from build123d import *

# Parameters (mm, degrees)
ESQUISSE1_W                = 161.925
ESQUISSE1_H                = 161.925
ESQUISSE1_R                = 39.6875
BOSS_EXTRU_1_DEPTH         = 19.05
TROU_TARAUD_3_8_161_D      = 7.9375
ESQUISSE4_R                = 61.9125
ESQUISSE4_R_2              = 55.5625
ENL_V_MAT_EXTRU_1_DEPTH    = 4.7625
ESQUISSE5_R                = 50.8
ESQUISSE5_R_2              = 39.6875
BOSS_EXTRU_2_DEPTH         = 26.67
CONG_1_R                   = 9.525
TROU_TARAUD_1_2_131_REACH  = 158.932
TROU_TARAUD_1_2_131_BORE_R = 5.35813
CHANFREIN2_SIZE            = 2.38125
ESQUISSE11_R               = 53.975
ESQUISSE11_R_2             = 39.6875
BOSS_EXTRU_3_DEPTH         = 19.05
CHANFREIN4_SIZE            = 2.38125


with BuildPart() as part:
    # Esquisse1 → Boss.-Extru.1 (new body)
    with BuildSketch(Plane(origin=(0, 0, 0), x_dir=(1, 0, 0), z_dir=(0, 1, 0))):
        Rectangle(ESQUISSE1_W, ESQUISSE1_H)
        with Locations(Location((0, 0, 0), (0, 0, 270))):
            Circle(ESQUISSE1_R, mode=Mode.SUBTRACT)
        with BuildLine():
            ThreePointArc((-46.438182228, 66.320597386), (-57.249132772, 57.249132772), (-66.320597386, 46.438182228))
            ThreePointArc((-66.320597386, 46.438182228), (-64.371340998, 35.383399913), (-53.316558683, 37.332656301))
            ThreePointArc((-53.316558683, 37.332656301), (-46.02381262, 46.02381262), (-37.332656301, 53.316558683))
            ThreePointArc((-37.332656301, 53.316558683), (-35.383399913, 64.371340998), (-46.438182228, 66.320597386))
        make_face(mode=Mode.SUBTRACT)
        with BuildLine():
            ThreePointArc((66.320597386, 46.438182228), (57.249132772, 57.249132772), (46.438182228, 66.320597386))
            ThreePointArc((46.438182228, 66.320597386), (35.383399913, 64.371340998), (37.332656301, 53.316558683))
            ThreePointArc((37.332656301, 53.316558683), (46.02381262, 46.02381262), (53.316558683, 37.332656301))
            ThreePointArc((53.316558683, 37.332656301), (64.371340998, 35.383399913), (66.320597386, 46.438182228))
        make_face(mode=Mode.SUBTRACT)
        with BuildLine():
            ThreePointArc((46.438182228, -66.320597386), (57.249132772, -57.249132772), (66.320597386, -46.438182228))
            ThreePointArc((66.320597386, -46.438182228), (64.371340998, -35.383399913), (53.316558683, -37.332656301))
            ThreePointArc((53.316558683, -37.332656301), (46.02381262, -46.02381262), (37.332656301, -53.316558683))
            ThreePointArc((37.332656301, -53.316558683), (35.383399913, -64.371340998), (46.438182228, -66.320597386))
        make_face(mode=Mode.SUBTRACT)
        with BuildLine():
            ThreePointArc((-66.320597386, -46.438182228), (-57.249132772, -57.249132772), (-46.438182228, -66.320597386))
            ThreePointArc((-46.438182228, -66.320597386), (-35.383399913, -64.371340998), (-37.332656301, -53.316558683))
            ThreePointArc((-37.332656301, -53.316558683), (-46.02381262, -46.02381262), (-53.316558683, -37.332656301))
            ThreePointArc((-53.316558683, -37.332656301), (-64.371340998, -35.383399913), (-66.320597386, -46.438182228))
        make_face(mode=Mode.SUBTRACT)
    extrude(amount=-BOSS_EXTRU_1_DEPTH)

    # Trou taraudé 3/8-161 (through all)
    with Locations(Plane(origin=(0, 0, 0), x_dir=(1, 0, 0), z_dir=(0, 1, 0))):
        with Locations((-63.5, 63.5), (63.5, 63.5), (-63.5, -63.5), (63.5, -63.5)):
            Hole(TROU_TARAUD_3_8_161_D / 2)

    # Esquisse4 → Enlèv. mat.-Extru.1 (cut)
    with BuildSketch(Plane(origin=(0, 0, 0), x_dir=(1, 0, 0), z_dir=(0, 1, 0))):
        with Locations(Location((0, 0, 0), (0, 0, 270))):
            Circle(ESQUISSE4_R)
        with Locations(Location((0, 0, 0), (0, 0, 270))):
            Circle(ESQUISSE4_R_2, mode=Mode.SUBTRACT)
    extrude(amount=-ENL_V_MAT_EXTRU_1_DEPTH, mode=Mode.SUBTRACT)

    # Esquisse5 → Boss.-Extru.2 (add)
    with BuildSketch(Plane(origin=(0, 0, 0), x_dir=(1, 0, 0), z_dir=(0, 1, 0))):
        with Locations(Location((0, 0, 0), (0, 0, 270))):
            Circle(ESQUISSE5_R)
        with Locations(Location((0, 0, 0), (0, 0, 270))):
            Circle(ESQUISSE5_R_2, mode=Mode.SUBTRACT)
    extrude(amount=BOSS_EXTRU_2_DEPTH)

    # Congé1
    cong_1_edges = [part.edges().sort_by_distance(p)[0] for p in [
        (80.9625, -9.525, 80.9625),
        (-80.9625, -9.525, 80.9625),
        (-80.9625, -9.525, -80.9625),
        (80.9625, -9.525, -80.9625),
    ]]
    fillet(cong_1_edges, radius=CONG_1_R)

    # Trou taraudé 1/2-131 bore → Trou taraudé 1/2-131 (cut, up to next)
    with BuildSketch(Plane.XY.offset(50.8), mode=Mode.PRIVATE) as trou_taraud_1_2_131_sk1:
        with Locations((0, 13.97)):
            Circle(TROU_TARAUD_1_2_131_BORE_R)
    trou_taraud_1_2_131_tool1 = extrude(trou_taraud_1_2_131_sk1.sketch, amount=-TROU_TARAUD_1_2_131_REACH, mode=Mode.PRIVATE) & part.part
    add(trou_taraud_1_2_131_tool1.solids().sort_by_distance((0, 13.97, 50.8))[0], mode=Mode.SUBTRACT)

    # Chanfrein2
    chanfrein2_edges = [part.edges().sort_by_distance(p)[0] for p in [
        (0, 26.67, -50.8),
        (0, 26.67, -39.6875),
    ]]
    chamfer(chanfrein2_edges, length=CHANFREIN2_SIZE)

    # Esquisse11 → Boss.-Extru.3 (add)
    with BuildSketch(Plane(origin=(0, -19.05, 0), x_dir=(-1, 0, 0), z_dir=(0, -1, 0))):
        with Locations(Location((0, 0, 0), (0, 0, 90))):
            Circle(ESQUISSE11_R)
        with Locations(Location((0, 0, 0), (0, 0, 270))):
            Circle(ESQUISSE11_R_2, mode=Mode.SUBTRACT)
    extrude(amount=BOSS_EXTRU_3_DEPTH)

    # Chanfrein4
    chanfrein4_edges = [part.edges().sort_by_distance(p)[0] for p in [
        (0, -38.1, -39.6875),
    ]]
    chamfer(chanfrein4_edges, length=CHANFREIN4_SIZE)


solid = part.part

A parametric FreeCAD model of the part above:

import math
import FreeCAD as App
import Part
import Sketcher
from FreeCAD import Vector
Q = App.Units.Quantity


def edges_at(feature, points):
    """Names of the edges that pass closest to the given points."""
    edges = feature.Shape.Edges
    near = lambda p: min(range(len(edges)), key=lambda i: edges[i].distToShape(Part.Vertex(*p))[0])
    return sorted({f"Edge{near(p) + 1}" for p in points})

doc = App.newDocument("Part")
body = doc.addObject("PartDesign::Body", "Body")

# Sketch on XZ plane
sketch1 = body.newObject("Sketcher::SketchObject", "Sketch")
sketch1.AttachmentSupport = (doc.getObject("XZ_Plane"), [""])
sketch1.MapMode = "FlatFace"
sketch1.addGeometry([
    Part.LineSegment(Vector(-81, -81, 0), Vector(-81, 81, 0)),  # 0
    Part.LineSegment(Vector(-81, 81, 0), Vector(81, 81, 0)),  # 1
    Part.LineSegment(Vector(81, 81, 0), Vector(81, -81, 0)),  # 2
    Part.LineSegment(Vector(81, -81, 0), Vector(-81, -81, 0)),  # 3
    Part.ArcOfCircle(Part.Circle(Vector(0, 0, 0), Vector(0, 0, 1), 81), math.radians(125), math.radians(145)),  # 4
    Part.ArcOfCircle(Part.Circle(Vector(-60, 42, 0), Vector(0, 0, 1), 8), math.radians(145), math.radians(325)),  # 5
    Part.ArcOfCircle(Part.Circle(Vector(0, 0, 0), Vector(0, 0, 1), 65), math.radians(125), math.radians(145)),  # 6
    Part.ArcOfCircle(Part.Circle(Vector(-42, 60, 0), Vector(0, 0, 1), 8), math.radians(-55), math.radians(125)),  # 7
    Part.ArcOfCircle(Part.Circle(Vector(0, 0, 0), Vector(0, 0, 1), 81), math.radians(35), math.radians(55)),  # 8
    Part.ArcOfCircle(Part.Circle(Vector(42, 60, 0), Vector(0, 0, 1), 8), math.radians(55), math.radians(235)),  # 9
    Part.ArcOfCircle(Part.Circle(Vector(0, 0, 0), Vector(0, 0, 1), 65), math.radians(35), math.radians(55)),  # 10
    Part.ArcOfCircle(Part.Circle(Vector(60, 42, 0), Vector(0, 0, 1), 8), math.radians(-145), math.radians(35)),  # 11
    Part.ArcOfCircle(Part.Circle(Vector(0, 0, 0), Vector(0, 0, 1), 81), math.radians(-145), math.radians(-125)),  # 12
    Part.ArcOfCircle(Part.Circle(Vector(-42, -60, 0), Vector(0, 0, 1), 8), math.radians(-125), math.radians(55)),  # 13
    Part.ArcOfCircle(Part.Circle(Vector(0, 0, 0), Vector(0, 0, 1), 65), math.radians(-145), math.radians(-125)),  # 14
    Part.ArcOfCircle(Part.Circle(Vector(-60, -42, 0), Vector(0, 0, 1), 8), math.radians(35), math.radians(215)),  # 15
    Part.Circle(Vector(0, 0, 0), Vector(0, 0, 1), 40),  # 16
    Part.ArcOfCircle(Part.Circle(Vector(0, 0, 0), Vector(0, 0, 1), 81), math.radians(-55), math.radians(-35)),  # 17
    Part.ArcOfCircle(Part.Circle(Vector(60, -42, 0), Vector(0, 0, 1), 8), math.radians(-35), math.radians(145)),  # 18
    Part.ArcOfCircle(Part.Circle(Vector(0, 0, 0), Vector(0, 0, 1), 65), math.radians(-55), math.radians(-35)),  # 19
    Part.ArcOfCircle(Part.Circle(Vector(42, -60, 0), Vector(0, 0, 1), 8), math.radians(125), math.radians(305)),  # 20
], False)
sketch1.addConstraint([
    Sketcher.Constraint("Coincident", 0, 2, 1, 1),
    Sketcher.Constraint("Coincident", 1, 2, 2, 1),
    Sketcher.Constraint("Coincident", 2, 2, 3, 1),
    Sketcher.Constraint("Coincident", 3, 2, 0, 1),
    Sketcher.Constraint("Tangent", 4, 2, 5, 1),
    Sketcher.Constraint("Tangent", 5, 2, 6, 2),
    Sketcher.Constraint("Tangent", 6, 1, 7, 1),
    Sketcher.Constraint("Tangent", 7, 2, 4, 1),
    Sketcher.Constraint("Tangent", 8, 2, 9, 1),
    Sketcher.Constraint("Tangent", 9, 2, 10, 2),
    Sketcher.Constraint("Tangent", 10, 1, 11, 1),
    Sketcher.Constraint("Tangent", 11, 2, 8, 1),
    Sketcher.Constraint("Tangent", 12, 2, 13, 1),
    Sketcher.Constraint("Tangent", 13, 2, 14, 2),
    Sketcher.Constraint("Tangent", 14, 1, 15, 1),
    Sketcher.Constraint("Tangent", 15, 2, 12, 1),
    Sketcher.Constraint("Tangent", 17, 2, 18, 1),
    Sketcher.Constraint("Tangent", 18, 2, 19, 2),
    Sketcher.Constraint("Tangent", 19, 1, 20, 1),
    Sketcher.Constraint("Tangent", 20, 2, 17, 1),
    Sketcher.Constraint("Vertical", 0),
    Sketcher.Constraint("Horizontal", 1),
    Sketcher.Constraint("Vertical", 2),
    Sketcher.Constraint("Horizontal", 3),
    Sketcher.Constraint("Coincident", 4, 3, -1, 1),
    Sketcher.Constraint("Coincident", 6, 3, -1, 1),
    Sketcher.Constraint("Coincident", 8, 3, -1, 1),
    Sketcher.Constraint("Coincident", 10, 3, -1, 1),
    Sketcher.Constraint("Coincident", 12, 3, -1, 1),
    Sketcher.Constraint("Coincident", 14, 3, -1, 1),
    Sketcher.Constraint("Coincident", 16, 3, -1, 1),
    Sketcher.Constraint("Coincident", 17, 3, -1, 1),
    Sketcher.Constraint("Coincident", 19, 3, -1, 1),
    Sketcher.Constraint("Equal", 4, 8),
    Sketcher.Constraint("Equal", 7, 9),
    Sketcher.Constraint("Equal", 8, 12),
    Sketcher.Constraint("Equal", 11, 13),
    Sketcher.Constraint("Equal", 12, 17),
    Sketcher.Constraint("Equal", 15, 18),
    Sketcher.Constraint("Symmetric", 0, 2, 2, 2, -1, 1),
    Sketcher.Constraint("Horizontal", 7, 3, 9, 3),
    Sketcher.Constraint("Horizontal", 5, 3, 11, 3),
    Sketcher.Constraint("Horizontal", 15, 3, 18, 3),
    Sketcher.Constraint("Horizontal", 13, 3, 20, 3),
    Sketcher.Constraint("Vertical", 7, 3, 13, 3),
    Sketcher.Constraint("Vertical", 5, 3, 15, 3),
    Sketcher.Constraint("Equal", 3, 0),
    Sketcher.Constraint("Diameter", 16, Q("3.125 in")),
    Sketcher.Constraint("Radius", 4, Q("3.1875 in")),
    Sketcher.Constraint("Radius", 5, Q("0.3125 in")),
    Sketcher.Constraint("DistanceX", 1, 1, 1, 2, Q("6.375 in")),
    Sketcher.Constraint("DistanceX", 5, 3, -1, 1, 59.818578),
    Sketcher.Constraint("DistanceX", 7, 3, -1, 1, 41.885419),
])
pad1 = body.newObject("PartDesign::Pad", "Pad")
pad1.Profile = sketch1
pad1.Length = Q("0.75 in")

# Sketch on XZ plane
sketch2 = body.newObject("Sketcher::SketchObject", "Sketch001")
sketch2.AttachmentSupport = (doc.getObject("XZ_Plane"), [""])
sketch2.MapMode = "FlatFace"
sketch2.addGeometry([
    Part.Circle(Vector(-63.5, -63.5, 0), Vector(0, 0, 1), 4),
    Part.Circle(Vector(63.5, -63.5, 0), Vector(0, 0, 1), 4),
    Part.Circle(Vector(-63.5, 63.5, 0), Vector(0, 0, 1), 4),
    Part.Circle(Vector(63.5, 63.5, 0), Vector(0, 0, 1), 4),
], False)
sketch2.addConstraint([
    Sketcher.Constraint("Equal", 0, 1),
    Sketcher.Constraint("Equal", 1, 2),
    Sketcher.Constraint("Equal", 2, 3),
    Sketcher.Constraint("Symmetric", 1, 3, 2, 3, -1, 1),
    Sketcher.Constraint("Symmetric", 0, 3, 3, 3, -1, 1),
    Sketcher.Constraint("Symmetric", 0, 3, 1, 3, -2),
    Sketcher.Constraint("Diameter", 0, Q("0.3125 in")),
    Sketcher.Constraint("DistanceX", 0, 3, 1, 3, Q("5 in")),
    Sketcher.Constraint("DistanceY", 0, 3, 2, 3, Q("5 in")),
])
doc.recompute()
hole = body.newObject("PartDesign::Hole", "Hole")
hole.Profile = sketch2
hole.ThreadType = "None"
hole.Diameter = Q("0.3125 in")
hole.DepthType = "ThroughAll"
hole.Reversed = True

# Sketch on XZ plane
sketch3 = body.newObject("Sketcher::SketchObject", "Sketch002")
sketch3.AttachmentSupport = (doc.getObject("XZ_Plane"), [""])
sketch3.MapMode = "FlatFace"
sketch3.addGeometry([
    Part.Circle(Vector(0, 0, 0), Vector(0, 0, 1), 62),
    Part.Circle(Vector(0, 0, 0), Vector(0, 0, 1), 56),
], False)
sketch3.addConstraint([
    Sketcher.Constraint("Coincident", 0, 3, -1, 1),
    Sketcher.Constraint("Coincident", 1, 3, -1, 1),
    Sketcher.Constraint("Diameter", 0, Q("4.875 in")),
    Sketcher.Constraint("Diameter", 1, Q("4.375 in")),
])
pocket1 = body.newObject("PartDesign::Pocket", "Pocket")
pocket1.Profile = sketch3
pocket1.Length = Q("0.1875 in")
pocket1.Reversed = True

# Sketch on XZ plane
sketch4 = body.newObject("Sketcher::SketchObject", "Sketch003")
sketch4.AttachmentSupport = (doc.getObject("XZ_Plane"), [""])
sketch4.MapMode = "FlatFace"
sketch4.addGeometry([
    Part.Circle(Vector(0, 0, 0), Vector(0, 0, 1), 51),
    Part.Circle(Vector(0, 0, 0), Vector(0, 0, 1), 40),
], False)
sketch4.addConstraint([
    Sketcher.Constraint("Coincident", 0, 3, -1, 1),
    Sketcher.Constraint("Coincident", 1, 3, -1, 1),
    Sketcher.Constraint("Diameter", 0, Q("4 in")),
    Sketcher.Constraint("Diameter", 1, Q("3.125 in")),
])
pad2 = body.newObject("PartDesign::Pad", "Pad001")
pad2.Profile = sketch4
pad2.Length = Q("1.05 in")
pad2.Reversed = True
doc.recompute()

fillet = body.newObject("PartDesign::Fillet", "Fillet")
fillet.Base = (pad2, edges_at(pad2, [
    (80.963, -9.525, 80.963),
    (-80.963, -9.525, 80.963),
    (-80.963, -9.525, -80.963),
    (80.963, -9.525, -80.963),
]))
fillet.Radius = Q("0.375 in")

# Sketch on XY plane
sketch5 = body.newObject("Sketcher::SketchObject", "Sketch004")
sketch5.AttachmentSupport = (doc.getObject("XY_Plane"), [""])
sketch5.MapMode = "FlatFace"
sketch5.AttachmentOffset = App.Placement(Vector(0, 0, 2 * 25.4), App.Rotation())
sketch5.addGeometry(Part.Circle(Vector(0, 14, 0), Vector(0, 0, 1), 5), False)
sketch5.addConstraint([
    Sketcher.Constraint("PointOnObject", 0, 3, -2),
    Sketcher.Constraint("Diameter", 0, Q("0.4219 in")),
    Sketcher.Constraint("DistanceY", -1, 1, 0, 3, Q("0.55 in")),
])
pocket2 = body.newObject("PartDesign::Pocket", "Pocket001")
pocket2.Profile = sketch5
pocket2.Type = "UpToFirst"
doc.recompute()

chamfer = body.newObject("PartDesign::Chamfer", "Chamfer")
chamfer.Base = (pocket2, edges_at(pocket2, [(0, 26.67, -50.8), (0, 26.67, -39.688)]))
chamfer.Size = Q("0.09375 in")

# Sketch on XZ plane
sketch6 = body.newObject("Sketcher::SketchObject", "Sketch005")
sketch6.AttachmentSupport = (doc.getObject("XZ_Plane"), [""])
sketch6.MapMode = "FlatFace"
sketch6.AttachmentOffset = App.Placement(Vector(0, 0, 0.75 * 25.4), App.Rotation())
sketch6.addGeometry([
    Part.Circle(Vector(0, 0, 0), Vector(0, 0, 1), 54),
    Part.Circle(Vector(0, 0, 0), Vector(0, 0, 1), 40),
], False)
sketch6.addConstraint([
    Sketcher.Constraint("Coincident", 0, 3, -1, 1),
    Sketcher.Constraint("Coincident", 1, 3, -1, 1),
    Sketcher.Constraint("Diameter", 0, Q("4.25 in")),
    Sketcher.Constraint("Diameter", 1, Q("3.125 in")),
])
pad3 = body.newObject("PartDesign::Pad", "Pad002")
pad3.Profile = sketch6
pad3.Length = Q("0.75 in")
doc.recompute()

chamfer2 = body.newObject("PartDesign::Chamfer", "Chamfer001")
chamfer2.Base = (pad3, edges_at(pad3, [(0, -38.1, -39.688)]))
chamfer2.Size = Q("0.09375 in")

doc.recompute()
